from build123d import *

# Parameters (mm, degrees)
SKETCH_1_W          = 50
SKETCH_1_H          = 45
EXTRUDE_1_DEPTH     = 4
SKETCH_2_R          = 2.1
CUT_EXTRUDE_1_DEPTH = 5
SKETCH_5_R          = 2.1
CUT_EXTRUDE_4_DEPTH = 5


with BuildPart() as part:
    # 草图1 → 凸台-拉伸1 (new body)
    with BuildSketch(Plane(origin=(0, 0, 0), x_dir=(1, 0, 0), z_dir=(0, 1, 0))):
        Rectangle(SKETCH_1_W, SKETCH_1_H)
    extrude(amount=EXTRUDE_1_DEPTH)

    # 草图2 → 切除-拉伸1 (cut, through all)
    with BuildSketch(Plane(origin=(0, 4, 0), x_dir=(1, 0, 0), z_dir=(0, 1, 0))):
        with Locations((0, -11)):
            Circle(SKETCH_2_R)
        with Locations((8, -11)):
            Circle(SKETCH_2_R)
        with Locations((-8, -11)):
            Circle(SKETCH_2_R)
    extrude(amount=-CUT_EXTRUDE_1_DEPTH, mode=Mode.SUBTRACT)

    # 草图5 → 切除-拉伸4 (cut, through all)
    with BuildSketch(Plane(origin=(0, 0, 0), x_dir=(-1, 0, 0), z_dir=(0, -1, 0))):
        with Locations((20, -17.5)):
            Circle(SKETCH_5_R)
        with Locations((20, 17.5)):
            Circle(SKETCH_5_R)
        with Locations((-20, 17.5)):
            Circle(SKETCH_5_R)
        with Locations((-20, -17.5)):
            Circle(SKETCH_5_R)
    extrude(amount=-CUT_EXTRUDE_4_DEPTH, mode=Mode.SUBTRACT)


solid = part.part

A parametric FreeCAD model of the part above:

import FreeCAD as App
import Part
import Sketcher

V = App.Vector
Q = App.Units.Quantity

doc = App.newDocument("Part")
body = doc.addObject("PartDesign::Body", "Body")

sketch1 = body.newObject("Sketcher::SketchObject", "Sketch")
sketch1.AttachmentSupport = (doc.getObject("XZ_Plane"), [""])
sketch1.MapMode = "FlatFace"
sketch1.addGeometry([
    Part.LineSegment(V(-25, -22, 0), V(-25, 22, 0)),
    Part.LineSegment(V(-25, 22, 0), V(25, 22, 0)),
    Part.LineSegment(V(25, 22, 0), V(25, -22, 0)),
    Part.LineSegment(V(25, -22, 0), V(-25, -22, 0)),
], False)
sketch1.addConstraint([
    Sketcher.Constraint("Coincident", 0, 2, 1, 1),
    Sketcher.Constraint("Coincident", 1, 2, 2, 1),
    Sketcher.Constraint("Coincident", 2, 2, 3, 1),
    Sketcher.Constraint("Coincident", 3, 2, 0, 1),
    Sketcher.Constraint("Vertical", 0),
    Sketcher.Constraint("Horizontal", 1),
    Sketcher.Constraint("Vertical", 2),
    Sketcher.Constraint("Horizontal", 3),
    Sketcher.Constraint("Symmetric", 0, 2, 2, 2, -1, 1),
    Sketcher.Constraint("DistanceX", 1, 1, 1, 2, Q("50 mm")),
    Sketcher.Constraint("DistanceY", 0, 1, 0, 2, Q("45 mm")),
])
pad1 = body.newObject("PartDesign::Pad", "Pad")
pad1.Profile = sketch1
pad1.Length = 4
pad1.Reversed = True

sketch2 = body.newObject("Sketcher::SketchObject", "Sketch001")
sketch2.AttachmentSupport = (doc.getObject("XZ_Plane"), [""])
sketch2.MapMode = "FlatFace"
sketch2.AttachmentOffset = App.Placement(V(0, 0, -4), App.Rotation())
sketch2.addGeometry([
    Part.Circle(V(0, 11, 0), V(0, 0, 1), 2.1),
    Part.Circle(V(8, 11, 0), V(0, 0, 1), 2.1),
    Part.Circle(V(-8, 11, 0), V(0, 0, 1), 2.1),
], False)
sketch2.addConstraint([
    Sketcher.Constraint("Equal", 0, 1),
    Sketcher.Constraint("Equal", 1, 2),
    Sketcher.Constraint("Symmetric", 1, 3, 2, 3, -2),
    Sketcher.Constraint("PointOnObject", 0, 3, -2),
    Sketcher.Constraint("Horizontal", 0, 3, 1, 3),
    Sketcher.Constraint("Diameter", 0, Q("4.2 mm")),
    Sketcher.Constraint("DistanceY", -1, 1, 0, 3, Q("11 mm")),
    Sketcher.Constraint("DistanceX", -1, 1, 1, 3, Q("8 mm")),
])
pocket1 = body.newObject("PartDesign::Pocket", "Pocket")
pocket1.Profile = sketch2
pocket1.Type = "ThroughAll"
pocket1.Reversed = True

sketch3 = body.newObject("Sketcher::SketchObject", "Sketch002")
sketch3.AttachmentSupport = (doc.getObject("XZ_Plane"), [""])
sketch3.MapMode = "FlatFace"
sketch3.addGeometry([
    Part.Circle(V(-20, 17.5, 0), V(0, 0, 1), 2.1),
    Part.Circle(V(-20, -17.5, 0), V(0, 0, 1), 2.1),
    Part.Circle(V(20, -17.5, 0), V(0, 0, 1), 2.1),
    Part.Circle(V(20, 17.5, 0), V(0, 0, 1), 2.1),
], False)
sketch3.addConstraint([
    Sketcher.Constraint("Equal", 0, 1),
    Sketcher.Constraint("Equal", 1, 2),
    Sketcher.Constraint("Equal", 2, 3),
    Sketcher.Constraint("Symmetric", 0, 3, 2, 3, -1, 1),
    Sketcher.Constraint("Symmetric", 1, 3, 3, 3, -1, 1),
    Sketcher.Constraint("Symmetric", 1, 3, 2, 3, -2),
    Sketcher.Constraint("Diameter", 0, Q("4.2 mm")),
    Sketcher.Constraint("DistanceX", 0, 3, -1, 1, Q("20 mm")),
    Sketcher.Constraint("DistanceY", 1, 3, 0, 3, Q("35 mm")),
])
pocket2 = body.newObject("PartDesign::Pocket", "Pocket001")
pocket2.Profile = sketch3
pocket2.Type = "ThroughAll"

doc.recompute()
